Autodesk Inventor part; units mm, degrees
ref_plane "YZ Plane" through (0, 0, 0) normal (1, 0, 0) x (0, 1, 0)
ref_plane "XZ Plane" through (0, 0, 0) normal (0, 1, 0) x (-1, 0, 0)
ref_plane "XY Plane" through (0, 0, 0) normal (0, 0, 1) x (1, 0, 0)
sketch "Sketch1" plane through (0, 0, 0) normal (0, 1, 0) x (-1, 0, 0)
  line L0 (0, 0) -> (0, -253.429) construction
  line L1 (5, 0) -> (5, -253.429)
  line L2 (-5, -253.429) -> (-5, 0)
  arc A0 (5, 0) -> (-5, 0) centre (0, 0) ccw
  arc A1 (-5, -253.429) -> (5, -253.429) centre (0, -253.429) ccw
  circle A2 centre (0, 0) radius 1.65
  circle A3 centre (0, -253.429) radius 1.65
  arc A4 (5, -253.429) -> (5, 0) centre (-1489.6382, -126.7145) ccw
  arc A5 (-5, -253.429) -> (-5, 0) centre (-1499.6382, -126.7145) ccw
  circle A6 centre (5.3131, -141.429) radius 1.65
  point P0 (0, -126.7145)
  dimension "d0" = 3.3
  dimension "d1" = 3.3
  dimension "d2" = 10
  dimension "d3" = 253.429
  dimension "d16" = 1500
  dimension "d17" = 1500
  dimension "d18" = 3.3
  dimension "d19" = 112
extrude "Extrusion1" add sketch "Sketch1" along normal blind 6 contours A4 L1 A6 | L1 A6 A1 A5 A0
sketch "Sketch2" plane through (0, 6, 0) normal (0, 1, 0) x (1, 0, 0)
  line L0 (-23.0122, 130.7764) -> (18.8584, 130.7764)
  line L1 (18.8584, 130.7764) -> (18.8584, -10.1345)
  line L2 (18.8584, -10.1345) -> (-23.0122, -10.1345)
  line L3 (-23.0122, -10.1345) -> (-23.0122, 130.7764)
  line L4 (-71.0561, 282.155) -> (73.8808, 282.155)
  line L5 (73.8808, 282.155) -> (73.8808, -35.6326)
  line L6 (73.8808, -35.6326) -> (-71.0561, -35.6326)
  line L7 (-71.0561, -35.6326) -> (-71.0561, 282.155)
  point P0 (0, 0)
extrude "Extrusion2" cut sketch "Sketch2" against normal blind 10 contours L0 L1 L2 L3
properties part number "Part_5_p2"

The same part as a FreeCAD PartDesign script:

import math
import FreeCAD as App
import Part
import Sketcher
Q = App.Units.Quantity

doc = App.newDocument("Part")
body = doc.addObject("PartDesign::Body", "Body")

sketch1 = doc.addObject("Sketcher::SketchObject", "Sketch")
body.addObject(sketch1)
sketch1.AttachmentSupport = (doc.XZ_Plane, [""])
sketch1.MapMode = "FlatFace"
sketch1.addGeometry([
    Part.ArcOfCircle(Part.Circle(App.Vector(1489.6382, -126.7145, 0), App.Vector(0, 0, 1), 1499.999971), math.radians(175.154087), math.radians(184.845913)),
    Part.ArcOfCircle(Part.Circle(App.Vector(0, 0, 0), App.Vector(0, 0, 1), 5), math.radians(0), math.radians(180)),
    Part.ArcOfCircle(Part.Circle(App.Vector(1499.6382, -126.7145, 0), App.Vector(0, 0, 1), 1499.999971), math.radians(175.154087), math.radians(184.845913)),
    Part.ArcOfCircle(Part.Circle(App.Vector(0, -253.429, 0), App.Vector(0, 0, 1), 5), math.radians(180), math.radians(360)),
    Part.Circle(App.Vector(-5.3131, -141.429, 0), App.Vector(0, 0, 1), 1.65),
    Part.Circle(App.Vector(0, -253.429, 0), App.Vector(0, 0, 1), 1.65),
    Part.Circle(App.Vector(0, 0, 0), App.Vector(0, 0, 1), 1.65),
], False)
sketch1.addConstraint([
    Sketcher.Constraint("Coincident", 0, 1, 1, 2),
    Sketcher.Constraint("Coincident", 1, 1, 2, 1),
    Sketcher.Constraint("Coincident", 2, 2, 3, 2),
    Sketcher.Constraint("Coincident", 3, 1, 0, 2),
    Sketcher.Constraint("Coincident", 1, 3, -1, 1),
    Sketcher.Constraint("Coincident", 6, 3, -1, 1),
    Sketcher.Constraint("Coincident", 5, 3, 3, 3),
    Sketcher.Constraint("Equal", 0, 2),
    Sketcher.Constraint("Equal", 1, 3),
    Sketcher.Constraint("Equal", 4, 5),
    Sketcher.Constraint("Equal", 5, 6),
    Sketcher.Constraint("Symmetric", 2, 2, 3, 1, -2),
    Sketcher.Constraint("PointOnObject", 1, 1, -1),
    Sketcher.Constraint("Horizontal", 0, 3, 2, 3),
    Sketcher.Constraint("Radius", 0, Q("1500 mm")),
    Sketcher.Constraint("Radius", 1, Q("5 mm")),
    Sketcher.Constraint("Diameter", 4, Q("3.3 mm")),
    Sketcher.Constraint("DistanceY", 3, 3, 4, 3, Q("112 mm")),
    Sketcher.Constraint("DistanceY", 3, 1, 4, 3, Q("112 mm")),
    Sketcher.Constraint("DistanceY", 3, 3, -1, 1, Q("253.429 mm")),
    Sketcher.Constraint("DistanceX", 4, 3, -1, 1, Q("5.313 mm")),
])
pad1 = doc.addObject("PartDesign::Pad", "Pad")
body.addObject(pad1)
pad1.Profile = sketch1
pad1.Length = 6
pad1.Reversed = True

sketch2 = doc.addObject("Sketcher::SketchObject", "Sketch001")
body.addObject(sketch2)
sketch2.AttachmentSupport = (doc.XZ_Plane, [""])
sketch2.MapMode = "FlatFace"
sketch2.AttachmentOffset = App.Placement(App.Vector(0, 0, -6), App.Rotation())
sketch2.addGeometry([
    Part.LineSegment(App.Vector(18.8584, -130.7764, 0), App.Vector(-23.0122, -130.7764, 0)),
    Part.LineSegment(App.Vector(-23.0122, -130.7764, 0), App.Vector(-23.0122, 10.1345, 0)),
    Part.LineSegment(App.Vector(-23.0122, 10.1345, 0), App.Vector(18.8584, 10.1345, 0)),
    Part.LineSegment(App.Vector(18.8584, 10.1345, 0), App.Vector(18.8584, -130.7764, 0)),
], False)
sketch2.addConstraint([
    Sketcher.Constraint("Coincident", 0, 2, 1, 1),
    Sketcher.Constraint("Coincident", 1, 2, 2, 1),
    Sketcher.Constraint("Coincident", 2, 2, 3, 1),
    Sketcher.Constraint("Coincident", 3, 2, 0, 1),
    Sketcher.Constraint("Horizontal", 0),
    Sketcher.Constraint("Vertical", 1),
    Sketcher.Constraint("Horizontal", 2),
    Sketcher.Constraint("Vertical", 3),
    Sketcher.Constraint("DistanceY", 1, 1, 1, 2, Q("140.911 mm")),
    Sketcher.Constraint("DistanceX", 0, 2, 0, 1, Q("41.8706 mm")),
    Sketcher.Constraint("DistanceX", 0, 2, -1, 1, Q("23.0122 mm")),
    Sketcher.Constraint("DistanceY", 0, 2, -1, 1, Q("130.7764 mm")),
])
pocket1 = doc.addObject("PartDesign::Pocket", "Pocket")
body.addObject(pocket1)
pocket1.Profile = sketch2
pocket1.Length = 10
pocket1.Reversed = True

doc.recompute()
